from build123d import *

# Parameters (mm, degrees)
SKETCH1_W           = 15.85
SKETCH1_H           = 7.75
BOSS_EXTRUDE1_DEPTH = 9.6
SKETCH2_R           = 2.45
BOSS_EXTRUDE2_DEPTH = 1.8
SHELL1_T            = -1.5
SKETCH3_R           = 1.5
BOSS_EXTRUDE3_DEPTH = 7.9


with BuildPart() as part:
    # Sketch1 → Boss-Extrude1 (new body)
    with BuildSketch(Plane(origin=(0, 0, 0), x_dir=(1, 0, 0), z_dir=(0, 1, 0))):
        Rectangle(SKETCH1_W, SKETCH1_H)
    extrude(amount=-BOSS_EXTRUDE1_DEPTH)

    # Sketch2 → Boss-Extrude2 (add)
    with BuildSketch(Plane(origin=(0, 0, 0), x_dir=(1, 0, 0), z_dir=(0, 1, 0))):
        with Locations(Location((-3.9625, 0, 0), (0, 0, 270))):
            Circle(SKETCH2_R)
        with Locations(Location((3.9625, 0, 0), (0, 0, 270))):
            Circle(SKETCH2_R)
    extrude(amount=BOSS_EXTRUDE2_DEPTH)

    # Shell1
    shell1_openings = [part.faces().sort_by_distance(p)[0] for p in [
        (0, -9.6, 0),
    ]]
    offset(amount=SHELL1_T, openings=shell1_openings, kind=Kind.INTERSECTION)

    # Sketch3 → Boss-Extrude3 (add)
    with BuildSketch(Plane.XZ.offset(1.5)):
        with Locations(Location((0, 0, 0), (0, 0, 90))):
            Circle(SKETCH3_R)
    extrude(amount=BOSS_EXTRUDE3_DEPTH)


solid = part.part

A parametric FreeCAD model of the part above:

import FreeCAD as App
import Part
import Sketcher

V = App.Vector


def faces_at(feature, points):
    """Names of the faces that lie closest to the given points."""
    faces = feature.Shape.Faces
    near = lambda p: min(range(len(faces)), key=lambda i: faces[i].distToShape(Part.Vertex(*p))[0])
    return sorted({f"Face{near(p) + 1}" for p in points})

doc = App.newDocument("Part")
params = doc.addObject("Spreadsheet::Sheet", "Params")
for row, (alias, value) in enumerate([
    ("sketch1_width", "15.85 mm"),
    ("sketch1_height", "7.75 mm"),
    ("pad1_length", "9.6 mm"),
    ("sketch2_diameter", "4.9 mm"),
    ("pad2_length", "1.8 mm"),
    ("thickness_wall", "1.5 mm"),
    ("sketch3_diameter", "3 mm"),
    ("pad3_length", "7.9 mm"),
], start=1):
    params.set(f"A{row}", alias)
    params.set(f"B{row}", "=" + value)
    params.setAlias(f"B{row}", alias)

body = doc.addObject("PartDesign::Body", "Body")

sketch1 = doc.addObject("Sketcher::SketchObject", "Sketch")
body.addObject(sketch1)
sketch1.AttachmentSupport = (doc.XZ_Plane, [""])
sketch1.MapMode = "FlatFace"
sketch1.addGeometry(Part.LineSegment(V(-7.925, -3.875, 0), V(-7.925, 3.875, 0)), False)
sketch1.addGeometry(Part.LineSegment(V(-7.925, 3.875, 0), V(7.925, 3.875, 0)), False)
sketch1.addGeometry(Part.LineSegment(V(7.925, 3.875, 0), V(7.925, -3.875, 0)), False)
sketch1.addGeometry(Part.LineSegment(V(7.925, -3.875, 0), V(-7.925, -3.875, 0)), False)
sketch1.addConstraint(Sketcher.Constraint("Coincident", 0, 2, 1, 1))
sketch1.addConstraint(Sketcher.Constraint("Coincident", 1, 2, 2, 1))
sketch1.addConstraint(Sketcher.Constraint("Coincident", 2, 2, 3, 1))
sketch1.addConstraint(Sketcher.Constraint("Coincident", 3, 2, 0, 1))
sketch1.addConstraint(Sketcher.Constraint("Vertical", 0))
sketch1.addConstraint(Sketcher.Constraint("Horizontal", 1))
sketch1.addConstraint(Sketcher.Constraint("Vertical", 2))
sketch1.addConstraint(Sketcher.Constraint("Horizontal", 3))
sketch1.addConstraint(Sketcher.Constraint("Symmetric", 0, 2, 2, 2, -1, 1))
sketch1.addConstraint(Sketcher.Constraint("DistanceX", 1, 1, 1, 2, 15.85))
sketch1.addConstraint(Sketcher.Constraint("DistanceY", 0, 1, 0, 2, 7.75))
sketch1.setExpression("Constraints[9]", "Params.sketch1_width")
sketch1.setExpression("Constraints[10]", "Params.sketch1_height")
pad1 = doc.addObject("PartDesign::Pad", "Pad")
body.addObject(pad1)
pad1.Profile = sketch1
pad1.setExpression("Length", "Params.pad1_length")

sketch2 = doc.addObject("Sketcher::SketchObject", "Sketch001")
body.addObject(sketch2)
sketch2.AttachmentSupport = (doc.XZ_Plane, [""])
sketch2.MapMode = "FlatFace"
sketch2.addGeometry(Part.Circle(V(-3.9625, 0, 0), V(0, 0, 1), 2.45), False)
sketch2.addGeometry(Part.Circle(V(3.9625, 0, 0), V(0, 0, 1), 2.45), False)
sketch2.addConstraint(Sketcher.Constraint("Equal", 0, 1))
sketch2.addConstraint(Sketcher.Constraint("Symmetric", 0, 3, 1, 3, -1, 1))
sketch2.addConstraint(Sketcher.Constraint("PointOnObject", 0, 3, -1))
sketch2.addConstraint(Sketcher.Constraint("Diameter", 0, 4.9))
sketch2.addConstraint(Sketcher.Constraint("DistanceX", 0, 3, 1, 3, 7.925))
sketch2.setExpression("Constraints[3]", "Params.sketch2_diameter")
pad2 = doc.addObject("PartDesign::Pad", "Pad001")
body.addObject(pad2)
pad2.Profile = sketch2
pad2.setExpression("Length", "Params.pad2_length")
pad2.Reversed = True
doc.recompute()

thickness = doc.addObject("PartDesign::Thickness", "Thickness")
body.addObject(thickness)
thickness.Base = (pad2, faces_at(pad2, [(0, -9.6, 0)]))
thickness.setExpression("Value", "Params.thickness_wall")
thickness.Reversed = True
thickness.Join = "Intersection"

sketch3 = doc.addObject("Sketcher::SketchObject", "Sketch002")
body.addObject(sketch3)
sketch3.AttachmentSupport = (doc.XZ_Plane, [""])
sketch3.MapMode = "FlatFace"
sketch3.AttachmentOffset = App.Placement(V(0, 0, 1.5), App.Rotation())
sketch3.addGeometry(Part.Circle(V(0, 0, 0), V(0, 0, 1), 1.5), False)
sketch3.addConstraint(Sketcher.Constraint("Coincident", 0, 3, -1, 1))
sketch3.addConstraint(Sketcher.Constraint("Diameter", 0, 3.0))
sketch3.setExpression("Constraints[1]", "Params.sketch3_diameter")
pad3 = doc.addObject("PartDesign::Pad", "Pad002")
body.addObject(pad3)
pad3.Profile = sketch3
pad3.setExpression("Length", "Params.pad3_length")

doc.recompute()
